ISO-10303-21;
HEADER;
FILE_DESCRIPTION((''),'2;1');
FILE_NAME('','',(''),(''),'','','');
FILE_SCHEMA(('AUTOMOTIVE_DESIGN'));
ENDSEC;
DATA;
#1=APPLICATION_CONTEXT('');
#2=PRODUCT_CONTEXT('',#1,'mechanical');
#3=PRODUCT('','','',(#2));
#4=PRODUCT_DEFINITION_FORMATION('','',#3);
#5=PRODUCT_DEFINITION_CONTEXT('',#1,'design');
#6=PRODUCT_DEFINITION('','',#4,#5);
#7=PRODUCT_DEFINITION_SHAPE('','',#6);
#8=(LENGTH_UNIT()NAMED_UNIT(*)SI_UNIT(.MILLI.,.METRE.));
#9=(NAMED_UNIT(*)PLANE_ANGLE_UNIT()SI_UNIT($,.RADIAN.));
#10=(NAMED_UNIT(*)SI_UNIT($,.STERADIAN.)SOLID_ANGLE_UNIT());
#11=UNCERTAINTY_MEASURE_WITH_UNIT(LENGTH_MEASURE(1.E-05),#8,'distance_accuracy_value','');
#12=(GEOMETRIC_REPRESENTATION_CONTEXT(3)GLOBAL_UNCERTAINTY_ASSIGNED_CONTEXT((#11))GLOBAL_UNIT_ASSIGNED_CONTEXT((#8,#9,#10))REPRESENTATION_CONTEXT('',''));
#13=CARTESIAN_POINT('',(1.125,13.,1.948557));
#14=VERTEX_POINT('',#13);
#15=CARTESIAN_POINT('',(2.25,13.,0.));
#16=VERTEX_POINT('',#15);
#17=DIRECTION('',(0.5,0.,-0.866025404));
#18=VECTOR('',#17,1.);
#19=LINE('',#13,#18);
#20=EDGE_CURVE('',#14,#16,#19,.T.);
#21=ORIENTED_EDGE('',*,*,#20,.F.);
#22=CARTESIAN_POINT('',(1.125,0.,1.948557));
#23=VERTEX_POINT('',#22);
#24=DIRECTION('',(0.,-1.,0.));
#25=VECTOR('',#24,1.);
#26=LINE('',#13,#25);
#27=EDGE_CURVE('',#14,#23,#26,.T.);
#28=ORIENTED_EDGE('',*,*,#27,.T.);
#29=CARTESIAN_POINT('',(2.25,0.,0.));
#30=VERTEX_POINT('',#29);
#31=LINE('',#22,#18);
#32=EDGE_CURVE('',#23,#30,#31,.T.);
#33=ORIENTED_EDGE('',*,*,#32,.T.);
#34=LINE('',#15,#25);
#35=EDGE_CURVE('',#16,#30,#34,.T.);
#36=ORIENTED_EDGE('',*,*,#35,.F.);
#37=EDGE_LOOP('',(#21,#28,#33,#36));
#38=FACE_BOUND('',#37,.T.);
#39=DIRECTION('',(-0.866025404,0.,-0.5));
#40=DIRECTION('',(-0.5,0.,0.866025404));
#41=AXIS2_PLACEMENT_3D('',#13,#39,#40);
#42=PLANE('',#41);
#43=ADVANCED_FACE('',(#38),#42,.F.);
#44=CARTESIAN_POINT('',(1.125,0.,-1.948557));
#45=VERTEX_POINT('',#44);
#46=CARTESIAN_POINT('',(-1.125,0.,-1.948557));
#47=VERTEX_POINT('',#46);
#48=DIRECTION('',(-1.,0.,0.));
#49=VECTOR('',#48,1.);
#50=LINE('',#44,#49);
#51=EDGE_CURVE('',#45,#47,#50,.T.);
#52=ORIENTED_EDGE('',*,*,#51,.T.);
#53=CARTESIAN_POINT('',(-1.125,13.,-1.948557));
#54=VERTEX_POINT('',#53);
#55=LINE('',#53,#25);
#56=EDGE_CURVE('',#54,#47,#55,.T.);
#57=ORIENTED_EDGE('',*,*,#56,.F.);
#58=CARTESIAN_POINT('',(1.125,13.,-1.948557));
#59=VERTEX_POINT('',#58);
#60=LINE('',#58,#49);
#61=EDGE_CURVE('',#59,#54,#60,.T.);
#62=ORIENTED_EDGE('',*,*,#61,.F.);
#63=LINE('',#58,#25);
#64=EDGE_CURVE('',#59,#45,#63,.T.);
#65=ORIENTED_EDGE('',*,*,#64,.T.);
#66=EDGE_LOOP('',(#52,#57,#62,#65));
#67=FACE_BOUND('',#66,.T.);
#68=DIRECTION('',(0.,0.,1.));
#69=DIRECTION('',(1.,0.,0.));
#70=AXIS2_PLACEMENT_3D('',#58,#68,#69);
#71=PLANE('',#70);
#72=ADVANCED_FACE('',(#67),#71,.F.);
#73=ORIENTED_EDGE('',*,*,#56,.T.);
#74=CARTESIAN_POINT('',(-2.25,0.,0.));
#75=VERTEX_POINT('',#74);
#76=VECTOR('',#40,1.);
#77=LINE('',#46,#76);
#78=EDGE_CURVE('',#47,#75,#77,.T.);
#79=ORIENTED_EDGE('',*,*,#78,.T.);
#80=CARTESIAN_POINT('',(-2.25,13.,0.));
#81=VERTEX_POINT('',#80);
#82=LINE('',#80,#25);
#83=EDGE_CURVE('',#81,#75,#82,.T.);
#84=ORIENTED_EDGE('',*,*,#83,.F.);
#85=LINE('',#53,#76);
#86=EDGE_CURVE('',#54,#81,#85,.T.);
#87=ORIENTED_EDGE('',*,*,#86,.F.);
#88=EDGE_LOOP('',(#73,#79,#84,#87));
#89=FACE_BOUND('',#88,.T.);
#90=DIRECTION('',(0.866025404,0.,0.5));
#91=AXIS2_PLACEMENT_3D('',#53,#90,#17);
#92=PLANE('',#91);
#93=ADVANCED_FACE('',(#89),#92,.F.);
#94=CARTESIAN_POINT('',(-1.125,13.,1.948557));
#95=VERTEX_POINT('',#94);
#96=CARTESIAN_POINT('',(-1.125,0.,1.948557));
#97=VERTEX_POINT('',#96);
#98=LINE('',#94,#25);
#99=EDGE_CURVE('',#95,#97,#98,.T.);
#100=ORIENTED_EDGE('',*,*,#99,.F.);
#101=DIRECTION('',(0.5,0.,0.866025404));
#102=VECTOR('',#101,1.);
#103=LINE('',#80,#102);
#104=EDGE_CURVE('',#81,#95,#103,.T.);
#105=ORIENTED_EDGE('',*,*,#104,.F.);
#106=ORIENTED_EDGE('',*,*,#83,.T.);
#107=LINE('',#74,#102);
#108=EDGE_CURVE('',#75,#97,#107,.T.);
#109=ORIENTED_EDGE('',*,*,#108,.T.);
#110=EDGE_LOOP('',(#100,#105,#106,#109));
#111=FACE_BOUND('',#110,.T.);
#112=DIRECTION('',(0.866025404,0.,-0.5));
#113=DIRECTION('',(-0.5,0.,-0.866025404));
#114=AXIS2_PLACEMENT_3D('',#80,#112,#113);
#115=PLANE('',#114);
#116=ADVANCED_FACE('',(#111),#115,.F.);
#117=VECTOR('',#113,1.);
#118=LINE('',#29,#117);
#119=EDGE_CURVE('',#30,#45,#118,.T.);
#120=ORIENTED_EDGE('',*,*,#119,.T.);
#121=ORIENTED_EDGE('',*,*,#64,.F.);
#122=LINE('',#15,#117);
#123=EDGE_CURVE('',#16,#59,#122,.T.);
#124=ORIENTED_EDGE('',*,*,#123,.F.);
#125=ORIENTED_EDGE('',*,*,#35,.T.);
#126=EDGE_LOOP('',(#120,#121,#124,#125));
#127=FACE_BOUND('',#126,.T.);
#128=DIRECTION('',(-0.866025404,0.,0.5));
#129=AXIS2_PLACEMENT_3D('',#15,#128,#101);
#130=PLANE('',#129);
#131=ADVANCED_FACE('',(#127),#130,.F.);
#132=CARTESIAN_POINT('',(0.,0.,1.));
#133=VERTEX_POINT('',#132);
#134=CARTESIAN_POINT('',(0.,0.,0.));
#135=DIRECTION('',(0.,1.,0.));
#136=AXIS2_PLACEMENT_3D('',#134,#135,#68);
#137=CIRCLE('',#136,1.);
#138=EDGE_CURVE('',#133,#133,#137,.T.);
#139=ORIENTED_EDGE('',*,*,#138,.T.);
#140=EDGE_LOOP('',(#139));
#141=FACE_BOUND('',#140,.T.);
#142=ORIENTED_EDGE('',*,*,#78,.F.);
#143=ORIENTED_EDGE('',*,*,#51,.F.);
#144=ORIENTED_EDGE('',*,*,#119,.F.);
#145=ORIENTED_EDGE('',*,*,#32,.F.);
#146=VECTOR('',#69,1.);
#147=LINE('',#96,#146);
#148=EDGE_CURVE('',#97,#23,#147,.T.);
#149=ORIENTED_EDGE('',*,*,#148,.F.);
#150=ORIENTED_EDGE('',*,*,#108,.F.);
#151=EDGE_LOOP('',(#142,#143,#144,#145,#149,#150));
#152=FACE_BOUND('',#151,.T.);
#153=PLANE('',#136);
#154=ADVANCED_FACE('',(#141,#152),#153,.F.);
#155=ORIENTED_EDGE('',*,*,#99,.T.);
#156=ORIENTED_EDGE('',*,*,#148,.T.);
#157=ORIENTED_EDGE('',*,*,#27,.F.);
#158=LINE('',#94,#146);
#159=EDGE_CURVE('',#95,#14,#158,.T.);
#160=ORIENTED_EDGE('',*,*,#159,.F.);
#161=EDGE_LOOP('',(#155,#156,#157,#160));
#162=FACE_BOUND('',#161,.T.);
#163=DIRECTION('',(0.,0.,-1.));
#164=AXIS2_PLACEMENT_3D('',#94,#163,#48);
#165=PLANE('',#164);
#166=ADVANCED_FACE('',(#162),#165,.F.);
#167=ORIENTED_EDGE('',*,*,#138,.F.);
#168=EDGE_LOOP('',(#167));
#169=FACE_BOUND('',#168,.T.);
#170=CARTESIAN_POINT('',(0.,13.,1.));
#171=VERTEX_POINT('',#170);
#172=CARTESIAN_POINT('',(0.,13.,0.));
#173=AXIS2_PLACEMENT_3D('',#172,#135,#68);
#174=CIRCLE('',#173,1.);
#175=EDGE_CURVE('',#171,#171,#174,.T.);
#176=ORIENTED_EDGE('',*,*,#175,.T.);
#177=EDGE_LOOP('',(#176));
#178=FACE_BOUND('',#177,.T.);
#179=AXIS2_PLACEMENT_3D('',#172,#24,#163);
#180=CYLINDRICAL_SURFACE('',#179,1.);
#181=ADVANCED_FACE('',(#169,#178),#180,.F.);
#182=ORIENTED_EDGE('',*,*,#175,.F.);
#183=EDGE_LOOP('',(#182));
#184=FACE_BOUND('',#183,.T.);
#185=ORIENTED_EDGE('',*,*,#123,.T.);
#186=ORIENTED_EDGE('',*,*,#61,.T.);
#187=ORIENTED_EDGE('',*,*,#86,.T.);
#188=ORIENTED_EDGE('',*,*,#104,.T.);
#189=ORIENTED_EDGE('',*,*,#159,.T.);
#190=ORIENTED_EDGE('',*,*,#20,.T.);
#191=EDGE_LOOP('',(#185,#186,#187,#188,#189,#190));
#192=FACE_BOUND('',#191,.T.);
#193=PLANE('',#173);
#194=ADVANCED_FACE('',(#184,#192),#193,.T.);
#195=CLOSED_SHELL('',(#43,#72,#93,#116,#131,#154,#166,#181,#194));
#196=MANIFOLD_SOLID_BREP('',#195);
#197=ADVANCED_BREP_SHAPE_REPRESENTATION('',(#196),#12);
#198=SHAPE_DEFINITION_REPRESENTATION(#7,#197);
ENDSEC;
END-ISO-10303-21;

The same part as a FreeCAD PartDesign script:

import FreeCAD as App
import Part
import Sketcher
Q = App.Units.Quantity


def add_polygon(sketch, points):
    """Adds a closed chain of lines whose ends are joined by coincident constraints."""
    first, n = sketch.GeometryCount, len(points)
    for a, b in zip(points, points[1:] + points[:1]):
        sketch.addGeometry(Part.LineSegment(App.Vector(*a, 0), App.Vector(*b, 0)), False)
    for i in range(n):
        sketch.addConstraint(Sketcher.Constraint("Coincident", first + i, 2, first + (i + 1) % n, 1))

doc = App.newDocument("Part")
body = doc.addObject("PartDesign::Body", "Body")

# Sketch on XZ plane
sketch1 = body.newObject("Sketcher::SketchObject", "Sketch")
sketch1.AttachmentSupport = (doc.getObject("XZ_Plane"), [""])
sketch1.MapMode = "FlatFace"
add_polygon(sketch1, [(2.2, 0), (1.1, -1.9), (-1.1, -1.9), (-2.2, 0), (-1.1, 1.9), (1.1, 1.9)])  # lines 0-5
sketch1.addGeometry(Part.Circle(App.Vector(0, 0, 0), App.Vector(0, 0, 1), 1), False)  # 6
sketch1.addConstraint([
    Sketcher.Constraint("Horizontal", 1),
    Sketcher.Constraint("Horizontal", 4),
    Sketcher.Constraint("Coincident", 6, 3, -1, 1),
    Sketcher.Constraint("Symmetric", 0, 2, 3, 2, -1, 1),
    Sketcher.Constraint("Symmetric", 2, 2, 5, 2, -1, 1),
    Sketcher.Constraint("PointOnObject", 2, 2, -1),
    Sketcher.Constraint("Parallel", 2, 5),
    Sketcher.Constraint("Vertical", 1, 2, 3, 2),
    Sketcher.Constraint("Diameter", 6, 2.0),
    Sketcher.Constraint("Angle", 0, Q("-120 deg")),
    Sketcher.Constraint("DistanceX", 1, 2, 1, 1, 2.25),
    Sketcher.Constraint("Distance", 0, 2.25),
])
pad1 = body.newObject("PartDesign::Pad", "Pad")
pad1.Profile = sketch1
pad1.Length = 13
pad1.Reversed = True

doc.recompute()
